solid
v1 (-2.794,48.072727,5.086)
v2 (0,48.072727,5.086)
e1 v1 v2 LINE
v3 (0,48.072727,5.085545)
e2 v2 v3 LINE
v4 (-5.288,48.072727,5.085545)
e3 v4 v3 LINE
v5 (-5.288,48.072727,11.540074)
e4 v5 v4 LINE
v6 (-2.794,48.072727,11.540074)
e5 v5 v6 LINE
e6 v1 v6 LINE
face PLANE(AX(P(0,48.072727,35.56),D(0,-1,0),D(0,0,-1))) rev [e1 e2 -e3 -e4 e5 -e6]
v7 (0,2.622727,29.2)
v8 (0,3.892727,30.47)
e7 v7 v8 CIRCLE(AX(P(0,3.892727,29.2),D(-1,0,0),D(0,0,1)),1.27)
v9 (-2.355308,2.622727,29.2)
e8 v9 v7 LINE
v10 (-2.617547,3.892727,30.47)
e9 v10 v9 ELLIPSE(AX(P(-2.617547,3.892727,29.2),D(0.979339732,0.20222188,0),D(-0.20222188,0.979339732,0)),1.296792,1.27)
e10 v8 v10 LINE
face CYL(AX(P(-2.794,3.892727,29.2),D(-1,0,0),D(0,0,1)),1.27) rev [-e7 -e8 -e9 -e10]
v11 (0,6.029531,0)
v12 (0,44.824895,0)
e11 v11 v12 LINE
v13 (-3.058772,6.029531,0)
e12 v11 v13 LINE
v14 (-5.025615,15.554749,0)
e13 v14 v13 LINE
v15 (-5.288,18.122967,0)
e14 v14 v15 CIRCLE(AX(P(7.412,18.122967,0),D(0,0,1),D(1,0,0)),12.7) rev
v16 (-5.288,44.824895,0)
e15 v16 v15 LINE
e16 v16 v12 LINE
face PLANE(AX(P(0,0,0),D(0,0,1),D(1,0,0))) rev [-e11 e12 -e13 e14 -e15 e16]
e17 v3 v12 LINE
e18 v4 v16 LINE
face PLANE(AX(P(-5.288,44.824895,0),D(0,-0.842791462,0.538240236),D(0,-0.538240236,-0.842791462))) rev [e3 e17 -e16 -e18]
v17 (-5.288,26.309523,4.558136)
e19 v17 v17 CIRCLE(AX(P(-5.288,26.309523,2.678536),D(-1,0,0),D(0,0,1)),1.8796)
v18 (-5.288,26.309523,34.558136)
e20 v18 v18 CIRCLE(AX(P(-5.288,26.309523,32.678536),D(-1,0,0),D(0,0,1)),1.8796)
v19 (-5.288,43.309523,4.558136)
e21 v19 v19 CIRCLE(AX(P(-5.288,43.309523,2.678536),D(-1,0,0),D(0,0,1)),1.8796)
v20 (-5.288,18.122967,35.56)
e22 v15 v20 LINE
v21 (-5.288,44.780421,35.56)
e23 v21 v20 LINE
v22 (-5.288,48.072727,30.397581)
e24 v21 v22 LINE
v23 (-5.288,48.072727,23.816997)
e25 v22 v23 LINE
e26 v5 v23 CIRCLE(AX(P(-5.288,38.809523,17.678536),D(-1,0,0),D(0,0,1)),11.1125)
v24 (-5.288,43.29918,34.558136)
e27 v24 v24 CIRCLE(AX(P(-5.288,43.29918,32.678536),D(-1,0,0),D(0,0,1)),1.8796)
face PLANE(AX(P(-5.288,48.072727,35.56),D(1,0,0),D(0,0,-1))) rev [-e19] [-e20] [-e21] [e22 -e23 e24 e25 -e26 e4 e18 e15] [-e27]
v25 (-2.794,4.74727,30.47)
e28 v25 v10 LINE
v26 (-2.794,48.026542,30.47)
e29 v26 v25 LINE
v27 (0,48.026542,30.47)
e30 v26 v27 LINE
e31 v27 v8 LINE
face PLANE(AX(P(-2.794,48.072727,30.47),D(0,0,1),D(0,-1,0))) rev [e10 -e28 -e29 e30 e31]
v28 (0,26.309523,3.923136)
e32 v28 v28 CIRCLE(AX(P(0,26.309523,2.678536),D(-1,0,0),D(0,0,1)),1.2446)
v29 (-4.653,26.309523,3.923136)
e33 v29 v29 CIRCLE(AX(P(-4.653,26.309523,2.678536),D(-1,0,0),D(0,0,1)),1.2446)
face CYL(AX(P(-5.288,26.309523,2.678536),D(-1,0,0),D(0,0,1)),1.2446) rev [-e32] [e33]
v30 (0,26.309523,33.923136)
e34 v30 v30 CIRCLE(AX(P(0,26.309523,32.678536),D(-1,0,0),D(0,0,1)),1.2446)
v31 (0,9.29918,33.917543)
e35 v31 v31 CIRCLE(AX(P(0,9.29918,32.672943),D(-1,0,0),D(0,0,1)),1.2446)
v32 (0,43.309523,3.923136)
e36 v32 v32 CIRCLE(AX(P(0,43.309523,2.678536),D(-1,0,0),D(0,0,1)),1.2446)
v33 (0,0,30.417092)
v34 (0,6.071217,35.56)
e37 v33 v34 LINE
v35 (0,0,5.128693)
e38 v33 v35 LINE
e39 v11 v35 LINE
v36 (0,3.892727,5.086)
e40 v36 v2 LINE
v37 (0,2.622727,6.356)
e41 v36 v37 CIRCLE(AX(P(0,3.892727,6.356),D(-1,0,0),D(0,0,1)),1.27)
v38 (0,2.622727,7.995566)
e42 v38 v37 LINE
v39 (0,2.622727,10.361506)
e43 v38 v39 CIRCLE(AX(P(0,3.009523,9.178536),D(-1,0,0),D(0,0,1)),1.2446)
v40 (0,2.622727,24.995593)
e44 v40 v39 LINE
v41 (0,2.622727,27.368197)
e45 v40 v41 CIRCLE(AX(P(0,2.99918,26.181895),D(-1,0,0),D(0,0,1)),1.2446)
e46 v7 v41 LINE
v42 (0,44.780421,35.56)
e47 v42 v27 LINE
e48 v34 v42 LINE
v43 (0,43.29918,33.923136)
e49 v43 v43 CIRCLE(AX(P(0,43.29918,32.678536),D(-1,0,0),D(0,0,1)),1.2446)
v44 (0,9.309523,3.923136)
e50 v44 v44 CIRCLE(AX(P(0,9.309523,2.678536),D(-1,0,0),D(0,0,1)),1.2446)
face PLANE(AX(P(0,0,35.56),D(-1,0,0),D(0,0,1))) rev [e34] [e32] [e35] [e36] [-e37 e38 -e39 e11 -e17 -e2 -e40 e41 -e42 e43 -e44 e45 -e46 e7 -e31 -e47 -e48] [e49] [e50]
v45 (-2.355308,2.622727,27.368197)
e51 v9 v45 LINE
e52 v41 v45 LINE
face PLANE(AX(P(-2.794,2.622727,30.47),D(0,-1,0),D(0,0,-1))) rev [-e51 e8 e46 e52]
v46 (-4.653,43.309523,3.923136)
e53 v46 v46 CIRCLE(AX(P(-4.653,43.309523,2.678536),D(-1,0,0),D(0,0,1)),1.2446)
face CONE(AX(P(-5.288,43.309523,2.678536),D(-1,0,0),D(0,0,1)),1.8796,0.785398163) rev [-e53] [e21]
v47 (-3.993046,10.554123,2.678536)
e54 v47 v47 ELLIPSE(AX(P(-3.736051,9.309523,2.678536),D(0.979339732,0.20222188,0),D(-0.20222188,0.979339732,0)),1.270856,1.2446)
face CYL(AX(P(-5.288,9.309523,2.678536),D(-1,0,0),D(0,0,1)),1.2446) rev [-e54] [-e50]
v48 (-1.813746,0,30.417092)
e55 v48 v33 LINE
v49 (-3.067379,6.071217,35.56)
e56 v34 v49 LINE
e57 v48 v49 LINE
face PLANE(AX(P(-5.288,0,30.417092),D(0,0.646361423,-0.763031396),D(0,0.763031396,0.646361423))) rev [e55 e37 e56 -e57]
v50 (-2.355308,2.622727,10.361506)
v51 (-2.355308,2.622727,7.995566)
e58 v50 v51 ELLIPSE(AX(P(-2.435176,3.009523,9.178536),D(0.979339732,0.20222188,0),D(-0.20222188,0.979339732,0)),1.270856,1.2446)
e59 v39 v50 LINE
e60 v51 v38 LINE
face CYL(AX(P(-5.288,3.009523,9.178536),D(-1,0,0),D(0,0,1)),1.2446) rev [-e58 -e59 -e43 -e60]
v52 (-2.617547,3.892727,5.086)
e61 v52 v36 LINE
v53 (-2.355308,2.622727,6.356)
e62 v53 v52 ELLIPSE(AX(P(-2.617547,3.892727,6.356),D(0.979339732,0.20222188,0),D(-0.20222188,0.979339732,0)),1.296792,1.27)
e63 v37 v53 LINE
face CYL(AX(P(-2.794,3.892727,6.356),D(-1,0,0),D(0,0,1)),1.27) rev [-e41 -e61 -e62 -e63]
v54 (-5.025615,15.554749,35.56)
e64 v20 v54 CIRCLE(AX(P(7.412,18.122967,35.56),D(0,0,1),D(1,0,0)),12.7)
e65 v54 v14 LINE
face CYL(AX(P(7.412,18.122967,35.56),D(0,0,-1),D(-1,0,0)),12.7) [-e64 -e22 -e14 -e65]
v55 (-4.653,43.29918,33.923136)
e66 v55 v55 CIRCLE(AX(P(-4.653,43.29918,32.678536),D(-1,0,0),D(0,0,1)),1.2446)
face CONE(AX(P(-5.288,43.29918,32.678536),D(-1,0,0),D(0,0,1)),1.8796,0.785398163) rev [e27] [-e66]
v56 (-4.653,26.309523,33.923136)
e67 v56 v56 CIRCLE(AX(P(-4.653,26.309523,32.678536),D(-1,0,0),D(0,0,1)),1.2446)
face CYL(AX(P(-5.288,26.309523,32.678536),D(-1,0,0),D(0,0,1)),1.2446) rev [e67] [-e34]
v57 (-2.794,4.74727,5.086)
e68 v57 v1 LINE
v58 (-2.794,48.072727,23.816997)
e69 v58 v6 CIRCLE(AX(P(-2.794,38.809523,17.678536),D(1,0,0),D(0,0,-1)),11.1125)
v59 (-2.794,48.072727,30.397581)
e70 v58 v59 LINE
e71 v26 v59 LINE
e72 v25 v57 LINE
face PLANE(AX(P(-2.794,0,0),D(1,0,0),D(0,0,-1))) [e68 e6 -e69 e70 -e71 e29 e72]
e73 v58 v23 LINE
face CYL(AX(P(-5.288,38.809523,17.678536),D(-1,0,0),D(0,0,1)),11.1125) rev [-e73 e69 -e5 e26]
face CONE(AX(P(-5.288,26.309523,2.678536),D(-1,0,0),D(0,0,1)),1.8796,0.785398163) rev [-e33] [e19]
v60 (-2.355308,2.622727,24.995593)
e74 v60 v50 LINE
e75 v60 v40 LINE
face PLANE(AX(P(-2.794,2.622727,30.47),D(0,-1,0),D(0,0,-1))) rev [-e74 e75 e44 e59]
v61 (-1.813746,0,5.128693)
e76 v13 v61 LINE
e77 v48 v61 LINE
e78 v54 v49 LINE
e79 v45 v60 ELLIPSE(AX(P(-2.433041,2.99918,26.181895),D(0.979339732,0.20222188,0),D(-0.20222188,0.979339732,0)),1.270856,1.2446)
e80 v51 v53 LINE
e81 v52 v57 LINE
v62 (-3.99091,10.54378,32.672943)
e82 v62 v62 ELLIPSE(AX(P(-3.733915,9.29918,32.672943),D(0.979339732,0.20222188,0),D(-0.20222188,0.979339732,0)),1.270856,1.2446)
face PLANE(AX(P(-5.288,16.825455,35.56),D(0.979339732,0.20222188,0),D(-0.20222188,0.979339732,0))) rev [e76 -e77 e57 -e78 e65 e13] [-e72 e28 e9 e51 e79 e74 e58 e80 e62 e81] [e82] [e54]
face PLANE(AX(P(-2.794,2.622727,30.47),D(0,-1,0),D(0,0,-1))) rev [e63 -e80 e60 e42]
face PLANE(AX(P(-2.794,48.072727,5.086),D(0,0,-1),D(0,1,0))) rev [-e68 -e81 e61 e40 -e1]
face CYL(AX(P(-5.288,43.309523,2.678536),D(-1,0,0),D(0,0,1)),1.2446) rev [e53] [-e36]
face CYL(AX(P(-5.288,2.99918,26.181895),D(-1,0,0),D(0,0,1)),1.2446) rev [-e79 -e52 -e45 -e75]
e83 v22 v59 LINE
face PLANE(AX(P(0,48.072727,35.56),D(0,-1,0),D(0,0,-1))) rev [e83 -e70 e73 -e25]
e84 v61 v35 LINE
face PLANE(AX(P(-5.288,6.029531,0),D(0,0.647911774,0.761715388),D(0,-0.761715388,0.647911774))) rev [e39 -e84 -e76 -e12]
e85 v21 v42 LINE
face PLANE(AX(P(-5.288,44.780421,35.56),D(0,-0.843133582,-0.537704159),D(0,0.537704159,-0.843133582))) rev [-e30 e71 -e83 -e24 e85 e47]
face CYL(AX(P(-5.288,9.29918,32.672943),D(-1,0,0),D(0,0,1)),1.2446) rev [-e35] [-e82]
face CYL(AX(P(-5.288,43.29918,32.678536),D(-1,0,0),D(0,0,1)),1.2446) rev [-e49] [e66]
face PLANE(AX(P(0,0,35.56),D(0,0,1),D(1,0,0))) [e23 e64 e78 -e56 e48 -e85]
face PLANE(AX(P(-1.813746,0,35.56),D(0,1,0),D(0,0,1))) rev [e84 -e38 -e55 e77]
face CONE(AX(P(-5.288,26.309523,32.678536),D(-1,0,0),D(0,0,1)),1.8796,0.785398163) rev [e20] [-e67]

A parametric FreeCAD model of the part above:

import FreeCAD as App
import Part
import Sketcher
from FreeCAD import Vector
Q = App.Units.Quantity


def edges_at(feature, points):
    """Names of the edges that pass closest to the given points."""
    edges = feature.Shape.Edges
    near = lambda p: min(range(len(edges)), key=lambda i: edges[i].distToShape(Part.Vertex(*p))[0])
    return sorted({f"Edge{near(p) + 1}" for p in points})


def add_polygon(sketch, points):
    """Adds a closed chain of lines whose ends are joined by coincident constraints."""
    first, n = sketch.GeometryCount, len(points)
    for a, b in zip(points, points[1:] + points[:1]):
        sketch.addGeometry(Part.LineSegment(App.Vector(*a, 0), App.Vector(*b, 0)), False)
    for i in range(n):
        sketch.addConstraint(Sketcher.Constraint("Coincident", first + i, 2, first + (i + 1) % n, 1))

doc = App.newDocument("Part")
body = doc.addObject("PartDesign::Body", "Body")

# Sketch on XY plane
sketch1 = doc.addObject("Sketcher::SketchObject", "Sketch")
body.addObject(sketch1)
sketch1.AttachmentSupport = (doc.XY_Plane, [""])
sketch1.MapMode = "FlatFace"
add_polygon(sketch1, [(0, 0), (0, 48.072727), (-5.288, 48.072727), (-5.288, 16.825455), (-1.813746, 0)])  # lines 0-4
sketch1.addConstraint(Sketcher.Constraint("Vertical", 0))
sketch1.addConstraint(Sketcher.Constraint("Horizontal", 1))
sketch1.addConstraint(Sketcher.Constraint("Vertical", 2))
sketch1.addConstraint(Sketcher.Constraint("Horizontal", 4))
sketch1.addConstraint(Sketcher.Constraint("Coincident", 4, 2, -1, 1))
sketch1.addConstraint(Sketcher.Constraint("DistanceX", 1, 2, 1, 1, 5.288))
sketch1.addConstraint(Sketcher.Constraint("DistanceX", 4, 1, 4, 2, 1.813746))
sketch1.addConstraint(Sketcher.Constraint("DistanceY", 0, 1, 0, 2, 48.072727))
sketch1.addConstraint(Sketcher.Constraint("DistanceY", 2, 2, 2, 1, 31.247273))
pad1 = doc.addObject("PartDesign::Pad", "Pad")
body.addObject(pad1)
pad1.Profile = sketch1
pad1.Length = Q("1.4 in")
doc.recompute()

fillet = doc.addObject("PartDesign::Fillet", "Fillet")
body.addObject(fillet)
fillet.Base = (pad1, edges_at(pad1, [(-5.288, 16.825, 17.78)]))
fillet.Radius = Q("0.5 in")

# Sketch on YZ plane
sketch2 = doc.addObject("Sketcher::SketchObject", "Sketch001")
body.addObject(sketch2)
sketch2.AttachmentSupport = (doc.YZ_Plane, [""])
sketch2.MapMode = "FlatFace"
add_polygon(sketch2, [(48.072727, 30.47), (2.622727, 30.47), (2.622727, 5.086), (48.072727, 5.086)])  # lines 0-3
sketch2.addConstraint(Sketcher.Constraint("Horizontal", 0))
sketch2.addConstraint(Sketcher.Constraint("Vertical", 1))
sketch2.addConstraint(Sketcher.Constraint("Horizontal", 2))
sketch2.addConstraint(Sketcher.Constraint("Vertical", 3))
sketch2.addConstraint(Sketcher.Constraint("DistanceX", 0, 2, 0, 1, 45.45))
sketch2.addConstraint(Sketcher.Constraint("DistanceY", 1, 2, 1, 1, 25.384))
sketch2.addConstraint(Sketcher.Constraint("DistanceY", -1, 1, 0, 2, 30.47))
sketch2.addConstraint(Sketcher.Constraint("DistanceX", -1, 1, 0, 2, 2.622727))
pocket1 = doc.addObject("PartDesign::Pocket", "Pocket")
body.addObject(pocket1)
pocket1.Profile = sketch2
pocket1.Length = Q("0.11 in")
doc.recompute()

fillet2 = doc.addObject("PartDesign::Fillet", "Fillet001")
body.addObject(fillet2)
fillet2.Base = (pocket1, edges_at(pocket1, [(-1.178, 2.623, 30.47), (-1.178, 2.623, 5.086)]))
fillet2.Radius = Q("0.05 in")

# Sketch on YZ plane
sketch3 = doc.addObject("Sketcher::SketchObject", "Sketch002")
body.addObject(sketch3)
sketch3.AttachmentSupport = (doc.YZ_Plane, [""])
sketch3.MapMode = "FlatFace"
add_polygon(sketch3, [(44.780421, 35.56), (48.072727, 30.397581), (48.072727, 35.56)])  # lines 0-2
sketch3.addConstraint(Sketcher.Constraint("Vertical", 1))
sketch3.addConstraint(Sketcher.Constraint("Horizontal", 2))
sketch3.addConstraint(Sketcher.Constraint("DistanceY", -1, 1, 1, 2, Q("1.4 in")))
sketch3.addConstraint(Sketcher.Constraint("DistanceY", 1, 1, 1, 2, 5.162419))
sketch3.addConstraint(Sketcher.Constraint("DistanceX", 2, 2, 2, 1, 3.292307))
sketch3.addConstraint(Sketcher.Constraint("DistanceX", -1, 1, 2, 2, 44.780421))
pocket2 = doc.addObject("PartDesign::Pocket", "Pocket001")
body.addObject(pocket2)
pocket2.Profile = sketch3
pocket2.Type = "ThroughAll"

# Sketch on YZ plane
sketch4 = doc.addObject("Sketcher::SketchObject", "Sketch003")
body.addObject(sketch4)
sketch4.AttachmentSupport = (doc.YZ_Plane, [""])
sketch4.MapMode = "FlatFace"
add_polygon(sketch4, [(48.072727, 0), (48.072727, 5.085545), (44.824895, 0)])  # lines 0-2
add_polygon(sketch4, [(6.029531, 0), (0, 5.128693), (0, 0)])  # lines 3-5
add_polygon(sketch4, [(6.071217, 35.56), (0, 35.56), (0, 30.417092)])  # lines 6-8
sketch4.addConstraint(Sketcher.Constraint("Vertical", 0))
sketch4.addConstraint(Sketcher.Constraint("Horizontal", 2))
sketch4.addConstraint(Sketcher.Constraint("Vertical", 4))
sketch4.addConstraint(Sketcher.Constraint("Horizontal", 5))
sketch4.addConstraint(Sketcher.Constraint("Horizontal", 6))
sketch4.addConstraint(Sketcher.Constraint("Vertical", 7))
sketch4.addConstraint(Sketcher.Constraint("Coincident", 4, 2, -1, 1))
sketch4.addConstraint(Sketcher.Constraint("PointOnObject", 1, 2, -1))
sketch4.addConstraint(Sketcher.Constraint("PointOnObject", 6, 2, -2))
sketch4.addConstraint(Sketcher.Constraint("DistanceY", -1, 1, 6, 2, Q("1.4 in")))
sketch4.addConstraint(Sketcher.Constraint("DistanceX", 2, 1, 2, 2, 3.247832))
sketch4.addConstraint(Sketcher.Constraint("DistanceX", 5, 1, 5, 2, 6.029531))
sketch4.addConstraint(Sketcher.Constraint("DistanceY", 7, 2, 7, 1, 5.142908))
sketch4.addConstraint(Sketcher.Constraint("DistanceY", 3, 2, 7, 2, 25.288399))
sketch4.addConstraint(Sketcher.Constraint("DistanceX", 6, 2, 6, 1, 6.071217))
sketch4.addConstraint(Sketcher.Constraint("DistanceY", 0, 1, 0, 2, 5.085545))
sketch4.addConstraint(Sketcher.Constraint("DistanceX", -1, 1, 0, 2, 48.072727))
pocket3 = doc.addObject("PartDesign::Pocket", "Pocket002")
body.addObject(pocket3)
pocket3.Profile = sketch4
pocket3.Type = "ThroughAll"

# Sketch on YZ plane
sketch5 = doc.addObject("Sketcher::SketchObject", "Sketch004")
body.addObject(sketch5)
sketch5.AttachmentSupport = (doc.YZ_Plane, [""])
sketch5.MapMode = "FlatFace"
sketch5.AttachmentOffset = App.Placement(Vector(0, 0, -5.288), App.Rotation())
sketch5.addGeometry(Part.Circle(Vector(38.809523, 17.678536, 0), Vector(0, 0, 1), 11.1125), False)
sketch5.addConstraint(Sketcher.Constraint("Diameter", 0, Q("0.875 in")))
sketch5.addConstraint(Sketcher.Constraint("DistanceX", -1, 1, 0, 3, 38.809523))
sketch5.addConstraint(Sketcher.Constraint("DistanceY", -1, 1, 0, 3, 17.678536))
doc.recompute()
hole = doc.addObject("PartDesign::Hole", "Hole")
body.addObject(hole)
hole.Profile = sketch5
hole.ThreadType = "None"
hole.Diameter = Q("0.875 in")
hole.DepthType = "ThroughAll"
hole.Reversed = True

# Sketch on YZ plane
sketch6 = doc.addObject("Sketcher::SketchObject", "Sketch005")
body.addObject(sketch6)
sketch6.AttachmentSupport = (doc.YZ_Plane, [""])
sketch6.MapMode = "FlatFace"
sketch6.AttachmentOffset = App.Placement(Vector(0, 0, -5.288), App.Rotation())
sketch6.addGeometry(Part.Circle(Vector(43.309523, 2.678536, 0), Vector(0, 0, 1), 1.2446), False)
sketch6.addGeometry(Part.Circle(Vector(26.309523, 2.678536, 0), Vector(0, 0, 1), 1.2446), False)
sketch6.addGeometry(Part.Circle(Vector(9.309523, 2.678536, 0), Vector(0, 0, 1), 1.2446), False)
sketch6.addGeometry(Part.Circle(Vector(3.009523, 9.178536, 0), Vector(0, 0, 1), 1.2446), False)
sketch6.addGeometry(Part.Circle(Vector(2.99918, 26.181895, 0), Vector(0, 0, 1), 1.2446), False)
sketch6.addGeometry(Part.Circle(Vector(9.29918, 32.672943, 0), Vector(0, 0, 1), 1.2446), False)
sketch6.addGeometry(Part.Circle(Vector(26.309523, 32.678536, 0), Vector(0, 0, 1), 1.2446), False)
sketch6.addGeometry(Part.Circle(Vector(43.29918, 32.678536, 0), Vector(0, 0, 1), 1.2446), False)
sketch6.addConstraint(Sketcher.Constraint("Equal", 0, 1))
sketch6.addConstraint(Sketcher.Constraint("Equal", 1, 2))
sketch6.addConstraint(Sketcher.Constraint("Equal", 2, 3))
sketch6.addConstraint(Sketcher.Constraint("Equal", 3, 4))
sketch6.addConstraint(Sketcher.Constraint("Equal", 4, 5))
sketch6.addConstraint(Sketcher.Constraint("Equal", 5, 6))
sketch6.addConstraint(Sketcher.Constraint("Equal", 6, 7))
sketch6.addConstraint(Sketcher.Constraint("Horizontal", 0, 3, 1, 3))
sketch6.addConstraint(Sketcher.Constraint("Horizontal", 1, 3, 2, 3))
sketch6.addConstraint(Sketcher.Constraint("Horizontal", 6, 3, 7, 3))
sketch6.addConstraint(Sketcher.Constraint("Vertical", 1, 3, 6, 3))
sketch6.addConstraint(Sketcher.Constraint("Diameter", 0, Q("0.098 in")))
sketch6.addConstraint(Sketcher.Constraint("DistanceX", 1, 3, 0, 3, 17.0))
sketch6.addConstraint(Sketcher.Constraint("DistanceX", 2, 3, 1, 3, 17.0))
sketch6.addConstraint(Sketcher.Constraint("DistanceX", 3, 3, 2, 3, 6.3))
sketch6.addConstraint(Sketcher.Constraint("DistanceY", 2, 3, 3, 3, 6.5))
sketch6.addConstraint(Sketcher.Constraint("DistanceX", 4, 3, 5, 3, 6.3))
sketch6.addConstraint(Sketcher.Constraint("DistanceY", 1, 3, 6, 3, 30.0))
sketch6.addConstraint(Sketcher.Constraint("DistanceX", 5, 3, 7, 3, 34.0))
sketch6.addConstraint(Sketcher.Constraint("DistanceX", -1, 1, 4, 3, 2.99918))
sketch6.addConstraint(Sketcher.Constraint("DistanceY", 3, 3, 4, 3, 17.003359))
sketch6.addConstraint(Sketcher.Constraint("DistanceX", -1, 1, 0, 3, 43.309523))
sketch6.addConstraint(Sketcher.Constraint("DistanceY", -1, 1, 0, 3, 2.678536))
sketch6.addConstraint(Sketcher.Constraint("DistanceY", -1, 1, 5, 3, 32.672943))
doc.recompute()
hole2 = doc.addObject("PartDesign::Hole", "Hole001")
body.addObject(hole2)
hole2.Profile = sketch6
hole2.ThreadType = "None"
hole2.Diameter = Q("0.098 in")
hole2.DepthType = "ThroughAll"
hole2.HoleCutType = "Countersink"
hole2.HoleCutDiameter = Q("0.148 in")
hole2.HoleCutCountersinkAngle = 90
hole2.Reversed = True

doc.recompute()
